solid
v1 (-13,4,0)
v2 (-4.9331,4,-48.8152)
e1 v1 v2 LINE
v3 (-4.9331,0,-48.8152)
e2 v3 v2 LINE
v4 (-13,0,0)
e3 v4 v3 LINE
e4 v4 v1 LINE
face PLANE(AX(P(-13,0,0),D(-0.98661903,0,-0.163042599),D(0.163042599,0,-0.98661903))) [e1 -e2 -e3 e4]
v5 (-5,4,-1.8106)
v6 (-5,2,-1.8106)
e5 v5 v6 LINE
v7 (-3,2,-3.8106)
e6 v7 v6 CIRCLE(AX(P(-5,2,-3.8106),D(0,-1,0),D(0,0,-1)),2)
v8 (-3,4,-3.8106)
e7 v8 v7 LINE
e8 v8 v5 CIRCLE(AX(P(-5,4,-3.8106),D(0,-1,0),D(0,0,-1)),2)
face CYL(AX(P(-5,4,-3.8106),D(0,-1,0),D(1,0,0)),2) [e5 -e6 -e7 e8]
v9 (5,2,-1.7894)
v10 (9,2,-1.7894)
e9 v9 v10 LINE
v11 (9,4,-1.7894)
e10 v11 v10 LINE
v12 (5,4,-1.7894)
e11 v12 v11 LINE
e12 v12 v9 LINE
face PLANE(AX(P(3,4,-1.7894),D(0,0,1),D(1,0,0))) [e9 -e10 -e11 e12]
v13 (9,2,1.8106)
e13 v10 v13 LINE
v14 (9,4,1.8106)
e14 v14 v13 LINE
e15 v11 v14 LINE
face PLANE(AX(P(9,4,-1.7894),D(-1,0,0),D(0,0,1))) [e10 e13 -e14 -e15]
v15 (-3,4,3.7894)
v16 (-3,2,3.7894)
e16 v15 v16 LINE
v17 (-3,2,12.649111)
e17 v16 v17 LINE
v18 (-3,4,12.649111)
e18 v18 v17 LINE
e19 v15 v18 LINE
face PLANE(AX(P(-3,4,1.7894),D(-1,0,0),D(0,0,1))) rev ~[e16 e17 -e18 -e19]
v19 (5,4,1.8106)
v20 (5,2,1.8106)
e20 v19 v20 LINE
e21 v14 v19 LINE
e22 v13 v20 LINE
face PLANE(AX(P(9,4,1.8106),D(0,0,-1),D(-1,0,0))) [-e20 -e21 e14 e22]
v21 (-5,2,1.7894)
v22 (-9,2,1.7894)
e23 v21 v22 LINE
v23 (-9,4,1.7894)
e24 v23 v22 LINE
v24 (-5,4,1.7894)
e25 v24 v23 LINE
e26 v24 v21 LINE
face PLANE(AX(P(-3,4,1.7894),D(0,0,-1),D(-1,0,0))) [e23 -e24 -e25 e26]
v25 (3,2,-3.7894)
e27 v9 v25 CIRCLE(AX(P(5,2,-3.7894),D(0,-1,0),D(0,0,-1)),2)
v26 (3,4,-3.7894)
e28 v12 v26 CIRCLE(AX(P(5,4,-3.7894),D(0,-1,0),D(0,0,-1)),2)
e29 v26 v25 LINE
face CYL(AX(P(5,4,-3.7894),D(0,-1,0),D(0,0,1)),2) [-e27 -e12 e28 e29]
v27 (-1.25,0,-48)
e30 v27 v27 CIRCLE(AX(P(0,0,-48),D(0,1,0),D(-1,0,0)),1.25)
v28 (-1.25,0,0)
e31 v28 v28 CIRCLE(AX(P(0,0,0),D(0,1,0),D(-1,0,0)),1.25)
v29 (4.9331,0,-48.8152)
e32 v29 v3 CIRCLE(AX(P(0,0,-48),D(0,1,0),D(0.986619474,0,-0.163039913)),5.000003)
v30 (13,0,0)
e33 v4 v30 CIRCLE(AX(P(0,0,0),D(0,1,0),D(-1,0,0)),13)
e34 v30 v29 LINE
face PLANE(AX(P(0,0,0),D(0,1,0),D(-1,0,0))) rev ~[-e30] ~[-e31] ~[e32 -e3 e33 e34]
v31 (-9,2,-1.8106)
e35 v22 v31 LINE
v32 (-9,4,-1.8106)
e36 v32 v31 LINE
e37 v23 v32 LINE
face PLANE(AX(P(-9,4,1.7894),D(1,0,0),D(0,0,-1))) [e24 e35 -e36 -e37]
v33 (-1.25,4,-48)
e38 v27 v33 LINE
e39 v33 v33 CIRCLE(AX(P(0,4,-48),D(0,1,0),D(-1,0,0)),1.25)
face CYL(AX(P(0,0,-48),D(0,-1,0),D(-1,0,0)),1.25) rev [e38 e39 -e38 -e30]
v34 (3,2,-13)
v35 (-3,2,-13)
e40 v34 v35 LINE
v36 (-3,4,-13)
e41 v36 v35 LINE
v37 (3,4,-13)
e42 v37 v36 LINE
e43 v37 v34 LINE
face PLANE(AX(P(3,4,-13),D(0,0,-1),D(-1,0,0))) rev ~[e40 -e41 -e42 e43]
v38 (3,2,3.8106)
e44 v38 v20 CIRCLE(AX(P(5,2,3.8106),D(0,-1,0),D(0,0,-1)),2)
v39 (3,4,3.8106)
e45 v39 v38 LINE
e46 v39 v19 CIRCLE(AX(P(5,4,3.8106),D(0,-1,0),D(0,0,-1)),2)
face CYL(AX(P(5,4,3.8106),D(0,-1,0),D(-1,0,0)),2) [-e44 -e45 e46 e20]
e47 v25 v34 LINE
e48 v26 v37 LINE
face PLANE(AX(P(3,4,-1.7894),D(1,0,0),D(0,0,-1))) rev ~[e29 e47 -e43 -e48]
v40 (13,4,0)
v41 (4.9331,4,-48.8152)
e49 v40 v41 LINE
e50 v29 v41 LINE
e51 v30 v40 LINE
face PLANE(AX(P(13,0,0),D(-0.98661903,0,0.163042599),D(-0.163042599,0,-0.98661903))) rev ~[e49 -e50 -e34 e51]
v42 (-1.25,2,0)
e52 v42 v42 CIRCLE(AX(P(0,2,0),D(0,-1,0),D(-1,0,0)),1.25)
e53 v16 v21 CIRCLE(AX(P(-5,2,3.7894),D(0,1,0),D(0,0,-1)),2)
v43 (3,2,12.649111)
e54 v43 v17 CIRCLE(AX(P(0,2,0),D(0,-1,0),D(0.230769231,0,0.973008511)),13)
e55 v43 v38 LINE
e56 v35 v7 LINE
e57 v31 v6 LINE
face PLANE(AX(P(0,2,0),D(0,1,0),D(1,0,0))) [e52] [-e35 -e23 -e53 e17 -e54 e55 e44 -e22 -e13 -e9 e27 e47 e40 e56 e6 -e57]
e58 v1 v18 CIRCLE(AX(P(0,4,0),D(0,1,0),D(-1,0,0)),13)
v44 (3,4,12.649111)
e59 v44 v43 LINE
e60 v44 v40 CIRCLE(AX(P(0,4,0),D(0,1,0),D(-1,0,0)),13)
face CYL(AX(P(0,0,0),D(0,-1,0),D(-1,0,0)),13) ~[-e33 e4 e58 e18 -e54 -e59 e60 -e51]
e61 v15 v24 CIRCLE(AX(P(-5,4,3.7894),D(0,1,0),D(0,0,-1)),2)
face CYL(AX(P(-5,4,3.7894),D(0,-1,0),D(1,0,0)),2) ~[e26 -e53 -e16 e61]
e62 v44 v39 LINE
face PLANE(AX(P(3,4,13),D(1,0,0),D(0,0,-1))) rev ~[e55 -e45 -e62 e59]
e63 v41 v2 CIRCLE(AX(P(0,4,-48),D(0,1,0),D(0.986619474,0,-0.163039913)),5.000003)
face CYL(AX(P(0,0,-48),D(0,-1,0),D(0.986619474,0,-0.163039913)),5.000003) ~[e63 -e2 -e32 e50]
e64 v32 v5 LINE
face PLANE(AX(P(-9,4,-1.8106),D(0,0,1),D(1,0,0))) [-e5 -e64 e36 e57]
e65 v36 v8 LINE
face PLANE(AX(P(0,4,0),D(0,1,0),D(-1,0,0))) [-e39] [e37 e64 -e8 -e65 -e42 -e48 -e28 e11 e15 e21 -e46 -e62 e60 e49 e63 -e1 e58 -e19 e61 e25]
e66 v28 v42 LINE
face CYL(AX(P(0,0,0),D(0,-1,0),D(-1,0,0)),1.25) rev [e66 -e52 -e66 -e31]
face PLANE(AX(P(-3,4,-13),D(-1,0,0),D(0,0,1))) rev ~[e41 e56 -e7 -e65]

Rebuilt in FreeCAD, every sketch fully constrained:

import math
import FreeCAD as App
import Part
import Sketcher

V = App.Vector


def edges_at(feature, points):
    """Names of the edges that pass closest to the given points."""
    edges = feature.Shape.Edges
    near = lambda p: min(range(len(edges)), key=lambda i: edges[i].distToShape(Part.Vertex(*p))[0])
    return sorted({f"Edge{near(p) + 1}" for p in points})

doc = App.newDocument("Part")
body = doc.addObject("PartDesign::Body", "Body")

# Sketch on XZ plane
sketch1 = doc.addObject("Sketcher::SketchObject", "Sketch")
body.addObject(sketch1)
sketch1.AttachmentSupport = (doc.XZ_Plane, [""])
sketch1.MapMode = "FlatFace"
sketch1.addGeometry(Part.LineSegment(V(-4.9, -48.8, 0), V(-13, 0, 0)), False)
sketch1.addGeometry(Part.ArcOfCircle(Part.Circle(V(0, 0, 0), V(0, 0, 1), 13), math.radians(0), math.radians(180)), False)
sketch1.addGeometry(Part.LineSegment(V(13, 0, 0), V(4.9, -48.8, 0)), False)
sketch1.addGeometry(Part.ArcOfCircle(Part.Circle(V(0, -48, 0), V(0, 0, 1), 5), math.radians(-171), math.radians(-9)), False)
sketch1.addGeometry(Part.Circle(V(0, -48, 0), V(0, 0, 1), 1.2), False)
sketch1.addGeometry(Part.Circle(V(0, 0, 0), V(0, 0, 1), 1.2), False)
sketch1.addConstraint(Sketcher.Constraint("Coincident", 0, 2, 1, 2))
sketch1.addConstraint(Sketcher.Constraint("Coincident", 1, 1, 2, 1))
sketch1.addConstraint(Sketcher.Constraint("Tangent", 2, 2, 3, 2))
sketch1.addConstraint(Sketcher.Constraint("Tangent", 3, 1, 0, 1))
sketch1.addConstraint(Sketcher.Constraint("Coincident", 1, 3, -1, 1))
sketch1.addConstraint(Sketcher.Constraint("Coincident", 5, 3, -1, 1))
sketch1.addConstraint(Sketcher.Constraint("Coincident", 4, 3, 3, 3))
sketch1.addConstraint(Sketcher.Constraint("Equal", 4, 5))
sketch1.addConstraint(Sketcher.Constraint("Symmetric", 2, 2, 3, 1, -2))
sketch1.addConstraint(Sketcher.Constraint("PointOnObject", 0, 2, -1))
sketch1.addConstraint(Sketcher.Constraint("Radius", 1, 13.0))
sketch1.addConstraint(Sketcher.Constraint("Radius", 3, 5.0))
sketch1.addConstraint(Sketcher.Constraint("Diameter", 4, 2.5))
sketch1.addConstraint(Sketcher.Constraint("DistanceY", 3, 3, -1, 1, 48.0))
pad1 = doc.addObject("PartDesign::Pad", "Pad")
body.addObject(pad1)
pad1.Profile = sketch1
pad1.Length = 4
pad1.Reversed = True

# Sketch on XZ plane
sketch2 = doc.addObject("Sketcher::SketchObject", "Sketch001")
body.addObject(sketch2)
sketch2.AttachmentSupport = (doc.XZ_Plane, [""])
sketch2.MapMode = "FlatFace"
sketch2.AttachmentOffset = App.Placement(V(0, 0, -4), App.Rotation())
sketch2.addGeometry(Part.LineSegment(V(-3, 1.8, 0), V(-3, 13, 0)), False)
sketch2.addGeometry(Part.LineSegment(V(-3, 13, 0), V(3, 13, 0)), False)
sketch2.addGeometry(Part.LineSegment(V(3, 13, 0), V(3, 1.8, 0)), False)
sketch2.addGeometry(Part.LineSegment(V(3, 1.8, 0), V(9, 1.8, 0)), False)
sketch2.addGeometry(Part.LineSegment(V(9, 1.8, 0), V(9, -1.8, 0)), False)
sketch2.addGeometry(Part.LineSegment(V(9, -1.8, 0), V(3, -1.8, 0)), False)
sketch2.addGeometry(Part.LineSegment(V(3, -1.8, 0), V(3, -13, 0)), False)
sketch2.addGeometry(Part.LineSegment(V(3, -13, 0), V(-3, -13, 0)), False)
sketch2.addGeometry(Part.LineSegment(V(-3, -13, 0), V(-3, -1.8, 0)), False)
sketch2.addGeometry(Part.LineSegment(V(-3, -1.8, 0), V(-9, -1.8, 0)), False)
sketch2.addGeometry(Part.LineSegment(V(-9, -1.8, 0), V(-9, 1.8, 0)), False)
sketch2.addGeometry(Part.LineSegment(V(-9, 1.8, 0), V(-3, 1.8, 0)), False)
sketch2.addConstraint(Sketcher.Constraint("Coincident", 0, 2, 1, 1))
sketch2.addConstraint(Sketcher.Constraint("Coincident", 1, 2, 2, 1))
sketch2.addConstraint(Sketcher.Constraint("Coincident", 2, 2, 3, 1))
sketch2.addConstraint(Sketcher.Constraint("Coincident", 3, 2, 4, 1))
sketch2.addConstraint(Sketcher.Constraint("Coincident", 4, 2, 5, 1))
sketch2.addConstraint(Sketcher.Constraint("Coincident", 5, 2, 6, 1))
sketch2.addConstraint(Sketcher.Constraint("Coincident", 6, 2, 7, 1))
sketch2.addConstraint(Sketcher.Constraint("Coincident", 7, 2, 8, 1))
sketch2.addConstraint(Sketcher.Constraint("Coincident", 8, 2, 9, 1))
sketch2.addConstraint(Sketcher.Constraint("Coincident", 9, 2, 10, 1))
sketch2.addConstraint(Sketcher.Constraint("Coincident", 10, 2, 11, 1))
sketch2.addConstraint(Sketcher.Constraint("Coincident", 11, 2, 0, 1))
sketch2.addConstraint(Sketcher.Constraint("Vertical", 0))
sketch2.addConstraint(Sketcher.Constraint("Horizontal", 1))
sketch2.addConstraint(Sketcher.Constraint("Vertical", 2))
sketch2.addConstraint(Sketcher.Constraint("Horizontal", 3))
sketch2.addConstraint(Sketcher.Constraint("Vertical", 4))
sketch2.addConstraint(Sketcher.Constraint("Horizontal", 5))
sketch2.addConstraint(Sketcher.Constraint("Vertical", 6))
sketch2.addConstraint(Sketcher.Constraint("Horizontal", 7))
sketch2.addConstraint(Sketcher.Constraint("Vertical", 8))
sketch2.addConstraint(Sketcher.Constraint("Horizontal", 9))
sketch2.addConstraint(Sketcher.Constraint("Vertical", 10))
sketch2.addConstraint(Sketcher.Constraint("Horizontal", 11))
sketch2.addConstraint(Sketcher.Constraint("Symmetric", 0, 2, 6, 2, -1, 1))
sketch2.addConstraint(Sketcher.Constraint("Symmetric", 2, 2, 8, 2, -1, 1))
sketch2.addConstraint(Sketcher.Constraint("Symmetric", 4, 2, 10, 2, -1, 1))
sketch2.addConstraint(Sketcher.Constraint("Vertical", 2, 2, 5, 2))
sketch2.addConstraint(Sketcher.Constraint("Equal", 1, 3))
sketch2.addConstraint(Sketcher.Constraint("DistanceX", 1, 1, 1, 2, 6.0))
sketch2.addConstraint(Sketcher.Constraint("DistanceY", 4, 2, 4, 1, 3.6))
sketch2.addConstraint(Sketcher.Constraint("DistanceY", -1, 1, 0, 2, 13.0))
sketch2.addConstraint(Sketcher.Constraint("DistanceY", 0, 1, 0, 2, 11.2106))
pocket1 = doc.addObject("PartDesign::Pocket", "Pocket")
body.addObject(pocket1)
pocket1.Profile = sketch2
pocket1.Length = 2
pocket1.Reversed = True
doc.recompute()

fillet = doc.addObject("PartDesign::Fillet", "Fillet")
body.addObject(fillet)
fillet.Base = (pocket1, edges_at(pocket1, [
    (-3, 3, -1.811),
    (-3, 3, 1.789),
    (3, 3, -1.789),
    (3, 3, 1.811),
]))
fillet.Radius = 2

doc.recompute()
